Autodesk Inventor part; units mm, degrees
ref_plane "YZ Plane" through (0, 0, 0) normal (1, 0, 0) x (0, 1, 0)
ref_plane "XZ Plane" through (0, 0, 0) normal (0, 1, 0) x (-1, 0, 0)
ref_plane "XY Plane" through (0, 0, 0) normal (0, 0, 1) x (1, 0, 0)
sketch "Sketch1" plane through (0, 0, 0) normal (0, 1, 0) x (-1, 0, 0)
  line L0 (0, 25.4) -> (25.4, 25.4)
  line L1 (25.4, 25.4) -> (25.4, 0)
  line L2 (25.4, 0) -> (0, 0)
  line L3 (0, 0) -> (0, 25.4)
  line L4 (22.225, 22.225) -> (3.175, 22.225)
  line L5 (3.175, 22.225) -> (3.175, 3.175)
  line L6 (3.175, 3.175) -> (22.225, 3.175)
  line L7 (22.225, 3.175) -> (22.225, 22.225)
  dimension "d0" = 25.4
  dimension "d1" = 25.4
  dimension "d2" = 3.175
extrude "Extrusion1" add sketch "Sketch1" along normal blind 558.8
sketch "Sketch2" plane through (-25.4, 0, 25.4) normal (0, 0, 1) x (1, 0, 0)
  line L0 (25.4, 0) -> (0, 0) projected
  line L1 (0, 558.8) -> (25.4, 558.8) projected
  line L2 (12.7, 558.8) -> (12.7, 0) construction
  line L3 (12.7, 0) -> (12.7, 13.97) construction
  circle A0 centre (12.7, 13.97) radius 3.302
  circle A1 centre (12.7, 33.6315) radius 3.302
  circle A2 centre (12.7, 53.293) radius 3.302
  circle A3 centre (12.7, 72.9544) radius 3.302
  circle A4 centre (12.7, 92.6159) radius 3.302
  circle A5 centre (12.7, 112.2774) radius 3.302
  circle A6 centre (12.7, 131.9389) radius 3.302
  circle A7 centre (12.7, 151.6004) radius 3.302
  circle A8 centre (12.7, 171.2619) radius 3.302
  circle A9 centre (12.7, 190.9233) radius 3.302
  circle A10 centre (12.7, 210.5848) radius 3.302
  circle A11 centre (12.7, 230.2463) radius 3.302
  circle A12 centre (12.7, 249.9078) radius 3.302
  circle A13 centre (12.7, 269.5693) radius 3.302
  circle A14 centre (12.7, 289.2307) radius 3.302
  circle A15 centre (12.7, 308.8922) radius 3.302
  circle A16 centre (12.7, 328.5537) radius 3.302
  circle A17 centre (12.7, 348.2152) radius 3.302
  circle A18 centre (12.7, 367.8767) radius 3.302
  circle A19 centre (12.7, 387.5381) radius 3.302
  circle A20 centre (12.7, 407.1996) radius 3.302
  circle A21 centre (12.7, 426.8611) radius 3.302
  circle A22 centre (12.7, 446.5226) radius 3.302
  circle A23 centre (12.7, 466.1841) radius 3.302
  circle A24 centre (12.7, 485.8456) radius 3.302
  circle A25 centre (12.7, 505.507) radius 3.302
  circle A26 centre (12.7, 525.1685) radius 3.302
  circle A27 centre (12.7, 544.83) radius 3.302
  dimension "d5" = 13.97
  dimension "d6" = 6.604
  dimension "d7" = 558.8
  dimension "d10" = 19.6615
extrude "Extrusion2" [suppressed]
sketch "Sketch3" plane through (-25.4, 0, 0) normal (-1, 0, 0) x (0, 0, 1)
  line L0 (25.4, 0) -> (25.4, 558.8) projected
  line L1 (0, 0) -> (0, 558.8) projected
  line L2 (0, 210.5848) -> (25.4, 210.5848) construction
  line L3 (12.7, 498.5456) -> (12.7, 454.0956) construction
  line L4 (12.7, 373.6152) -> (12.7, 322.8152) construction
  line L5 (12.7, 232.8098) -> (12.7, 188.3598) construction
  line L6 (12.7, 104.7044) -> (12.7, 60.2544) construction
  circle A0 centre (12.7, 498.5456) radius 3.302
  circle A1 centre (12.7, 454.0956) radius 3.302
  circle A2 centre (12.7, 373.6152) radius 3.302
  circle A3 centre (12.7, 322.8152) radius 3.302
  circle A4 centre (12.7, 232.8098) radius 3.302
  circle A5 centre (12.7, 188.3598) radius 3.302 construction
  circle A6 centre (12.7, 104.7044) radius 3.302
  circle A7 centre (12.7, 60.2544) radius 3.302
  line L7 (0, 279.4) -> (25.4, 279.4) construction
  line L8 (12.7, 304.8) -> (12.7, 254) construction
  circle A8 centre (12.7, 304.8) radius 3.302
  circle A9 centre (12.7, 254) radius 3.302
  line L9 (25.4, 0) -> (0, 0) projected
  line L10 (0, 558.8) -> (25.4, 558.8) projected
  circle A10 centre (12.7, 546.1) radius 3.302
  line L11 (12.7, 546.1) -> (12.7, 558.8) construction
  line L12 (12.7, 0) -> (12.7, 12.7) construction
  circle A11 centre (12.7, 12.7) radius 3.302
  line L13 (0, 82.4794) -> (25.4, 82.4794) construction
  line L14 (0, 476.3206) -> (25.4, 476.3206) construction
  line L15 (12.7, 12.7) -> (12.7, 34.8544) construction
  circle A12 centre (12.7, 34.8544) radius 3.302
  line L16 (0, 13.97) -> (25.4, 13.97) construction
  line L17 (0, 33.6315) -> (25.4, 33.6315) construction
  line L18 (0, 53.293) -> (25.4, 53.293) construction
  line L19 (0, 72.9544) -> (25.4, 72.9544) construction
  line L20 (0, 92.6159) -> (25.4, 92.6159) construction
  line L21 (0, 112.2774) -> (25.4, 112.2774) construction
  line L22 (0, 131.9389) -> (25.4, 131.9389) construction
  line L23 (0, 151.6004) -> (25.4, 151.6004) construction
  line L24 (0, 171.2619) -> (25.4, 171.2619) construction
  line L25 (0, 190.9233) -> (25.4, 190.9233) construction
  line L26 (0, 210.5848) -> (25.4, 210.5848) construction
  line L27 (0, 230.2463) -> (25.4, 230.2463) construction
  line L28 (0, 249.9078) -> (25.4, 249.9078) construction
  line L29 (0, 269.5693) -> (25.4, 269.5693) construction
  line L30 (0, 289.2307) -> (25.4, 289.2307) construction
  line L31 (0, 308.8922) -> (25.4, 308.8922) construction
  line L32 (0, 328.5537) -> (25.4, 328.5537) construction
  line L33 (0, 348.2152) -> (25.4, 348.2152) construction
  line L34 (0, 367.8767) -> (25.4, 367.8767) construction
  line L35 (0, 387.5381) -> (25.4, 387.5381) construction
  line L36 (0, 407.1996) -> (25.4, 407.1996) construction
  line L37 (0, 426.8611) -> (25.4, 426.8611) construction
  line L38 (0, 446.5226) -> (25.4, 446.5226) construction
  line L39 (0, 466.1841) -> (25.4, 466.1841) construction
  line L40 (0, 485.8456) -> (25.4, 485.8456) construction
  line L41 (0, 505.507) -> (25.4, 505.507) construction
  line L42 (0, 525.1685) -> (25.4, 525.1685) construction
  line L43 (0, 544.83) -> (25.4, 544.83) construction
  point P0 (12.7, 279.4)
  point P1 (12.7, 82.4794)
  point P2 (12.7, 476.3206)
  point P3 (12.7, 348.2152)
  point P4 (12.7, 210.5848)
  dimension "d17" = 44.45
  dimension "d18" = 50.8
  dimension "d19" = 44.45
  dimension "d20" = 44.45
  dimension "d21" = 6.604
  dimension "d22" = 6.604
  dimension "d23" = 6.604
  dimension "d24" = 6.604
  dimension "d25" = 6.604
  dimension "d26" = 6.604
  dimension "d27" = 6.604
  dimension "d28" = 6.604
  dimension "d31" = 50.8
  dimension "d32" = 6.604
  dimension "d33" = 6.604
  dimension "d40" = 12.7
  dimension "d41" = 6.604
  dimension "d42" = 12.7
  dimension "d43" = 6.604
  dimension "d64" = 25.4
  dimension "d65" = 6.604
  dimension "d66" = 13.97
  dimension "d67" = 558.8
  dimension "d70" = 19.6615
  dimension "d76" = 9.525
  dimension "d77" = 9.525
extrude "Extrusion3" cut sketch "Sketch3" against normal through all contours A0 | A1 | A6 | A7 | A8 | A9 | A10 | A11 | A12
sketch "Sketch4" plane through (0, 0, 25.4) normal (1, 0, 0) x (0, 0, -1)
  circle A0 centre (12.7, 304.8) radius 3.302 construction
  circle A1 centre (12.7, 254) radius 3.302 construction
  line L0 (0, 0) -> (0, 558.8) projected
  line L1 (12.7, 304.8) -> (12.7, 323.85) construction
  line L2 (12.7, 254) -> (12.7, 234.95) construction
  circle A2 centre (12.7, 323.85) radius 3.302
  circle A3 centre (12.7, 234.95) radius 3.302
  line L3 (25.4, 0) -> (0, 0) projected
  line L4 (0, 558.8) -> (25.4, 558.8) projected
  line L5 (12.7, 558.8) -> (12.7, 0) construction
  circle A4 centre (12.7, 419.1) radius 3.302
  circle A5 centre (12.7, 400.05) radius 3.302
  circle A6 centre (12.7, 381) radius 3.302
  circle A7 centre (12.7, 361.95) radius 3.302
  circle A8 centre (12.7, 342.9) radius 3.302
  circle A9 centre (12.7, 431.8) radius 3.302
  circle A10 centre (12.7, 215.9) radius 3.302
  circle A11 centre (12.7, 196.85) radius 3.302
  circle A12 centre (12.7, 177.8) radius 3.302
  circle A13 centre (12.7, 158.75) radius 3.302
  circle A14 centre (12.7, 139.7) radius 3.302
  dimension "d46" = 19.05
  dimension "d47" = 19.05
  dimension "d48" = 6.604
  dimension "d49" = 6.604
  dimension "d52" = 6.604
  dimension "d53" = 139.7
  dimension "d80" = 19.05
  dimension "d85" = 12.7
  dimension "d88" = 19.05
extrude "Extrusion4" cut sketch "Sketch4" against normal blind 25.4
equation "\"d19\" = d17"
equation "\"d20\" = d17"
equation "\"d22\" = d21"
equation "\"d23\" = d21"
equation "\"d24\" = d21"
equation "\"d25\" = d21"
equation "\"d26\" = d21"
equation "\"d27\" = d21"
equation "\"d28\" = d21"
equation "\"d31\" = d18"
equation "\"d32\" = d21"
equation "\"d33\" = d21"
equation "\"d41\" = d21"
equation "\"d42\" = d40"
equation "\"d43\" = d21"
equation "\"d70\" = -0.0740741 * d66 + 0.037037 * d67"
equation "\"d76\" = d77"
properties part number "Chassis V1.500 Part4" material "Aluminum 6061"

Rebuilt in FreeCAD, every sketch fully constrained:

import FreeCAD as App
import Part
import Sketcher
Q = App.Units.Quantity

doc = App.newDocument("Part")
body = doc.addObject("PartDesign::Body", "Body")

sketch1 = body.newObject("Sketcher::SketchObject", "Sketch")
sketch1.AttachmentSupport = (doc.getObject("XZ_Plane"), [""])
sketch1.MapMode = "FlatFace"
sketch1.addGeometry([
    Part.LineSegment(App.Vector(-25, 25, 0), App.Vector(0, 25, 0)),
    Part.LineSegment(App.Vector(0, 25, 0), App.Vector(0, 0, 0)),
    Part.LineSegment(App.Vector(0, 0, 0), App.Vector(-25, 0, 0)),
    Part.LineSegment(App.Vector(-25, 0, 0), App.Vector(-25, 25, 0)),
    Part.LineSegment(App.Vector(-3, 22, 0), App.Vector(-22, 22, 0)),
    Part.LineSegment(App.Vector(-22, 22, 0), App.Vector(-22, 3, 0)),
    Part.LineSegment(App.Vector(-22, 3, 0), App.Vector(-3, 3, 0)),
    Part.LineSegment(App.Vector(-3, 3, 0), App.Vector(-3, 22, 0)),
], False)
sketch1.addConstraint([
    Sketcher.Constraint("Coincident", 0, 2, 1, 1),
    Sketcher.Constraint("Coincident", 1, 2, 2, 1),
    Sketcher.Constraint("Coincident", 2, 2, 3, 1),
    Sketcher.Constraint("Coincident", 3, 2, 0, 1),
    Sketcher.Constraint("Coincident", 4, 2, 5, 1),
    Sketcher.Constraint("Coincident", 5, 2, 6, 1),
    Sketcher.Constraint("Coincident", 6, 2, 7, 1),
    Sketcher.Constraint("Coincident", 7, 2, 4, 1),
    Sketcher.Constraint("Horizontal", 0),
    Sketcher.Constraint("Vertical", 1),
    Sketcher.Constraint("Horizontal", 2),
    Sketcher.Constraint("Vertical", 3),
    Sketcher.Constraint("Horizontal", 4),
    Sketcher.Constraint("Vertical", 5),
    Sketcher.Constraint("Horizontal", 6),
    Sketcher.Constraint("Vertical", 7),
    Sketcher.Constraint("Coincident", 1, 2, -1, 1),
    Sketcher.Constraint("Equal", 2, 1),
    Sketcher.Constraint("Equal", 6, 5),
    Sketcher.Constraint("DistanceX", 0, 1, 0, 2, Q("1 in")),
    Sketcher.Constraint("DistanceY", -1, 1, 5, 2, Q("0.125 in")),
    Sketcher.Constraint("DistanceX", 6, 2, -1, 1, Q("0.125 in")),
    Sketcher.Constraint("DistanceX", 3, 2, 4, 2, Q("0.125 in")),
])
pad1 = body.newObject("PartDesign::Pad", "Pad")
pad1.Profile = sketch1
pad1.Length = Q("22 in")
pad1.Reversed = True

sketch2 = body.newObject("Sketcher::SketchObject", "Sketch001")
sketch2.AttachmentSupport = (doc.getObject("YZ_Plane"), [""])
sketch2.MapMode = "FlatFace"
sketch2.AttachmentOffset = App.Placement(App.Vector(0, 0, -1 * 25.4), App.Rotation())
sketch2.addGeometry([
    Part.Circle(App.Vector(498.5, 12.7, 0), App.Vector(0, 0, 1), 3.3),
    Part.Circle(App.Vector(454.1, 12.7, 0), App.Vector(0, 0, 1), 3.3),
    Part.Circle(App.Vector(104.7, 12.7, 0), App.Vector(0, 0, 1), 3.3),
    Part.Circle(App.Vector(60.3, 12.7, 0), App.Vector(0, 0, 1), 3.3),
    Part.Circle(App.Vector(304.8, 12.7, 0), App.Vector(0, 0, 1), 3.3),
    Part.Circle(App.Vector(254, 12.7, 0), App.Vector(0, 0, 1), 3.3),
    Part.Circle(App.Vector(546.1, 12.7, 0), App.Vector(0, 0, 1), 3.3),
    Part.Circle(App.Vector(12.7, 12.7, 0), App.Vector(0, 0, 1), 3.3),
    Part.Circle(App.Vector(34.9, 12.7, 0), App.Vector(0, 0, 1), 3.3),
], False)
sketch2.addConstraint([
    Sketcher.Constraint("Equal", 0, 1),
    Sketcher.Constraint("Equal", 1, 2),
    Sketcher.Constraint("Equal", 2, 3),
    Sketcher.Constraint("Equal", 3, 4),
    Sketcher.Constraint("Equal", 4, 5),
    Sketcher.Constraint("Equal", 5, 6),
    Sketcher.Constraint("Equal", 6, 7),
    Sketcher.Constraint("Equal", 7, 8),
    Sketcher.Constraint("Horizontal", 0, 3, 1, 3),
    Sketcher.Constraint("Horizontal", 1, 3, 2, 3),
    Sketcher.Constraint("Horizontal", 2, 3, 3, 3),
    Sketcher.Constraint("Horizontal", 3, 3, 4, 3),
    Sketcher.Constraint("Horizontal", 4, 3, 5, 3),
    Sketcher.Constraint("Horizontal", 5, 3, 6, 3),
    Sketcher.Constraint("Horizontal", 6, 3, 7, 3),
    Sketcher.Constraint("Horizontal", 7, 3, 8, 3),
    Sketcher.Constraint("Diameter", 0, Q("0.26 in")),
    Sketcher.Constraint("DistanceX", 5, 3, 4, 3, Q("2 in")),
    Sketcher.Constraint("DistanceX", 8, 3, 3, 3, Q("1 in")),
    Sketcher.Constraint("DistanceY", -1, 1, 0, 3, Q("0.5 in")),
    Sketcher.Constraint("DistanceX", -1, 1, 7, 3, Q("0.5 in")),
    Sketcher.Constraint("DistanceX", 1, 3, 0, 3, Q("1.75 in")),
    Sketcher.Constraint("DistanceX", 3, 3, 2, 3, Q("1.75 in")),
    Sketcher.Constraint("DistanceX", -1, 1, 4, 3, Q("12 in")),
    Sketcher.Constraint("DistanceX", -1, 1, 6, 3, Q("21.5 in")),
    Sketcher.Constraint("DistanceX", -1, 1, 0, 3, 498.5456),
    Sketcher.Constraint("DistanceX", -1, 1, 2, 3, 104.7044),
])
pocket1 = body.newObject("PartDesign::Pocket", "Pocket")
pocket1.Profile = sketch2
pocket1.Type = "ThroughAll"
pocket1.Reversed = True

sketch3 = body.newObject("Sketcher::SketchObject", "Sketch002")
sketch3.AttachmentSupport = (doc.getObject("YZ_Plane"), [""])
sketch3.MapMode = "FlatFace"
sketch3.addGeometry([
    Part.Circle(App.Vector(323.9, 12.7, 0), App.Vector(0, 0, 1), 3.3),
    Part.Circle(App.Vector(234.9, 12.7, 0), App.Vector(0, 0, 1), 3.3),
    Part.Circle(App.Vector(419.1, 12.7, 0), App.Vector(0, 0, 1), 3.3),
    Part.Circle(App.Vector(400.1, 12.7, 0), App.Vector(0, 0, 1), 3.3),
    Part.Circle(App.Vector(381, 12.7, 0), App.Vector(0, 0, 1), 3.3),
    Part.Circle(App.Vector(361.9, 12.7, 0), App.Vector(0, 0, 1), 3.3),
    Part.Circle(App.Vector(342.9, 12.7, 0), App.Vector(0, 0, 1), 3.3),
    Part.Circle(App.Vector(431.8, 12.7, 0), App.Vector(0, 0, 1), 3.3),
    Part.Circle(App.Vector(215.9, 12.7, 0), App.Vector(0, 0, 1), 3.3),
    Part.Circle(App.Vector(196.8, 12.7, 0), App.Vector(0, 0, 1), 3.3),
    Part.Circle(App.Vector(177.8, 12.7, 0), App.Vector(0, 0, 1), 3.3),
    Part.Circle(App.Vector(158.8, 12.7, 0), App.Vector(0, 0, 1), 3.3),
    Part.Circle(App.Vector(139.7, 12.7, 0), App.Vector(0, 0, 1), 3.3),
], False)
sketch3.addConstraint([
    Sketcher.Constraint("Equal", 0, 1),
    Sketcher.Constraint("Equal", 1, 2),
    Sketcher.Constraint("Equal", 2, 3),
    Sketcher.Constraint("Equal", 3, 4),
    Sketcher.Constraint("Equal", 4, 5),
    Sketcher.Constraint("Equal", 5, 6),
    Sketcher.Constraint("Equal", 6, 7),
    Sketcher.Constraint("Equal", 7, 8),
    Sketcher.Constraint("Equal", 8, 9),
    Sketcher.Constraint("Equal", 9, 10),
    Sketcher.Constraint("Equal", 10, 11),
    Sketcher.Constraint("Equal", 11, 12),
    Sketcher.Constraint("Horizontal", 0, 3, 1, 3),
    Sketcher.Constraint("Horizontal", 1, 3, 2, 3),
    Sketcher.Constraint("Horizontal", 2, 3, 3, 3),
    Sketcher.Constraint("Horizontal", 3, 3, 4, 3),
    Sketcher.Constraint("Horizontal", 4, 3, 5, 3),
    Sketcher.Constraint("Horizontal", 5, 3, 6, 3),
    Sketcher.Constraint("Horizontal", 6, 3, 7, 3),
    Sketcher.Constraint("Horizontal", 7, 3, 8, 3),
    Sketcher.Constraint("Horizontal", 8, 3, 9, 3),
    Sketcher.Constraint("Horizontal", 9, 3, 10, 3),
    Sketcher.Constraint("Horizontal", 10, 3, 11, 3),
    Sketcher.Constraint("Horizontal", 11, 3, 12, 3),
    Sketcher.Constraint("Diameter", 0, Q("0.26 in")),
    Sketcher.Constraint("DistanceY", -1, 1, 0, 3, Q("0.5 in")),
    Sketcher.Constraint("DistanceX", -1, 1, 12, 3, Q("5.5 in")),
    Sketcher.Constraint("DistanceX", 2, 3, 7, 3, Q("0.5 in")),
    Sketcher.Constraint("DistanceX", 3, 3, 2, 3, Q("0.75 in")),
    Sketcher.Constraint("DistanceX", 4, 3, 3, 3, Q("0.75 in")),
    Sketcher.Constraint("DistanceX", 5, 3, 4, 3, Q("0.75 in")),
    Sketcher.Constraint("DistanceX", 0, 3, 6, 3, Q("0.75 in")),
    Sketcher.Constraint("DistanceX", 6, 3, 5, 3, Q("0.75 in")),
    Sketcher.Constraint("DistanceX", 8, 3, 1, 3, Q("0.75 in")),
    Sketcher.Constraint("DistanceX", 9, 3, 8, 3, Q("0.75 in")),
    Sketcher.Constraint("DistanceX", 10, 3, 9, 3, Q("0.75 in")),
    Sketcher.Constraint("DistanceX", 11, 3, 10, 3, Q("0.75 in")),
    Sketcher.Constraint("DistanceX", 12, 3, 11, 3, Q("0.75 in")),
    Sketcher.Constraint("DistanceX", -1, 1, 4, 3, Q("15 in")),
])
pocket2 = body.newObject("PartDesign::Pocket", "Pocket001")
pocket2.Profile = sketch3
pocket2.Length = Q("1 in")

doc.recompute()
